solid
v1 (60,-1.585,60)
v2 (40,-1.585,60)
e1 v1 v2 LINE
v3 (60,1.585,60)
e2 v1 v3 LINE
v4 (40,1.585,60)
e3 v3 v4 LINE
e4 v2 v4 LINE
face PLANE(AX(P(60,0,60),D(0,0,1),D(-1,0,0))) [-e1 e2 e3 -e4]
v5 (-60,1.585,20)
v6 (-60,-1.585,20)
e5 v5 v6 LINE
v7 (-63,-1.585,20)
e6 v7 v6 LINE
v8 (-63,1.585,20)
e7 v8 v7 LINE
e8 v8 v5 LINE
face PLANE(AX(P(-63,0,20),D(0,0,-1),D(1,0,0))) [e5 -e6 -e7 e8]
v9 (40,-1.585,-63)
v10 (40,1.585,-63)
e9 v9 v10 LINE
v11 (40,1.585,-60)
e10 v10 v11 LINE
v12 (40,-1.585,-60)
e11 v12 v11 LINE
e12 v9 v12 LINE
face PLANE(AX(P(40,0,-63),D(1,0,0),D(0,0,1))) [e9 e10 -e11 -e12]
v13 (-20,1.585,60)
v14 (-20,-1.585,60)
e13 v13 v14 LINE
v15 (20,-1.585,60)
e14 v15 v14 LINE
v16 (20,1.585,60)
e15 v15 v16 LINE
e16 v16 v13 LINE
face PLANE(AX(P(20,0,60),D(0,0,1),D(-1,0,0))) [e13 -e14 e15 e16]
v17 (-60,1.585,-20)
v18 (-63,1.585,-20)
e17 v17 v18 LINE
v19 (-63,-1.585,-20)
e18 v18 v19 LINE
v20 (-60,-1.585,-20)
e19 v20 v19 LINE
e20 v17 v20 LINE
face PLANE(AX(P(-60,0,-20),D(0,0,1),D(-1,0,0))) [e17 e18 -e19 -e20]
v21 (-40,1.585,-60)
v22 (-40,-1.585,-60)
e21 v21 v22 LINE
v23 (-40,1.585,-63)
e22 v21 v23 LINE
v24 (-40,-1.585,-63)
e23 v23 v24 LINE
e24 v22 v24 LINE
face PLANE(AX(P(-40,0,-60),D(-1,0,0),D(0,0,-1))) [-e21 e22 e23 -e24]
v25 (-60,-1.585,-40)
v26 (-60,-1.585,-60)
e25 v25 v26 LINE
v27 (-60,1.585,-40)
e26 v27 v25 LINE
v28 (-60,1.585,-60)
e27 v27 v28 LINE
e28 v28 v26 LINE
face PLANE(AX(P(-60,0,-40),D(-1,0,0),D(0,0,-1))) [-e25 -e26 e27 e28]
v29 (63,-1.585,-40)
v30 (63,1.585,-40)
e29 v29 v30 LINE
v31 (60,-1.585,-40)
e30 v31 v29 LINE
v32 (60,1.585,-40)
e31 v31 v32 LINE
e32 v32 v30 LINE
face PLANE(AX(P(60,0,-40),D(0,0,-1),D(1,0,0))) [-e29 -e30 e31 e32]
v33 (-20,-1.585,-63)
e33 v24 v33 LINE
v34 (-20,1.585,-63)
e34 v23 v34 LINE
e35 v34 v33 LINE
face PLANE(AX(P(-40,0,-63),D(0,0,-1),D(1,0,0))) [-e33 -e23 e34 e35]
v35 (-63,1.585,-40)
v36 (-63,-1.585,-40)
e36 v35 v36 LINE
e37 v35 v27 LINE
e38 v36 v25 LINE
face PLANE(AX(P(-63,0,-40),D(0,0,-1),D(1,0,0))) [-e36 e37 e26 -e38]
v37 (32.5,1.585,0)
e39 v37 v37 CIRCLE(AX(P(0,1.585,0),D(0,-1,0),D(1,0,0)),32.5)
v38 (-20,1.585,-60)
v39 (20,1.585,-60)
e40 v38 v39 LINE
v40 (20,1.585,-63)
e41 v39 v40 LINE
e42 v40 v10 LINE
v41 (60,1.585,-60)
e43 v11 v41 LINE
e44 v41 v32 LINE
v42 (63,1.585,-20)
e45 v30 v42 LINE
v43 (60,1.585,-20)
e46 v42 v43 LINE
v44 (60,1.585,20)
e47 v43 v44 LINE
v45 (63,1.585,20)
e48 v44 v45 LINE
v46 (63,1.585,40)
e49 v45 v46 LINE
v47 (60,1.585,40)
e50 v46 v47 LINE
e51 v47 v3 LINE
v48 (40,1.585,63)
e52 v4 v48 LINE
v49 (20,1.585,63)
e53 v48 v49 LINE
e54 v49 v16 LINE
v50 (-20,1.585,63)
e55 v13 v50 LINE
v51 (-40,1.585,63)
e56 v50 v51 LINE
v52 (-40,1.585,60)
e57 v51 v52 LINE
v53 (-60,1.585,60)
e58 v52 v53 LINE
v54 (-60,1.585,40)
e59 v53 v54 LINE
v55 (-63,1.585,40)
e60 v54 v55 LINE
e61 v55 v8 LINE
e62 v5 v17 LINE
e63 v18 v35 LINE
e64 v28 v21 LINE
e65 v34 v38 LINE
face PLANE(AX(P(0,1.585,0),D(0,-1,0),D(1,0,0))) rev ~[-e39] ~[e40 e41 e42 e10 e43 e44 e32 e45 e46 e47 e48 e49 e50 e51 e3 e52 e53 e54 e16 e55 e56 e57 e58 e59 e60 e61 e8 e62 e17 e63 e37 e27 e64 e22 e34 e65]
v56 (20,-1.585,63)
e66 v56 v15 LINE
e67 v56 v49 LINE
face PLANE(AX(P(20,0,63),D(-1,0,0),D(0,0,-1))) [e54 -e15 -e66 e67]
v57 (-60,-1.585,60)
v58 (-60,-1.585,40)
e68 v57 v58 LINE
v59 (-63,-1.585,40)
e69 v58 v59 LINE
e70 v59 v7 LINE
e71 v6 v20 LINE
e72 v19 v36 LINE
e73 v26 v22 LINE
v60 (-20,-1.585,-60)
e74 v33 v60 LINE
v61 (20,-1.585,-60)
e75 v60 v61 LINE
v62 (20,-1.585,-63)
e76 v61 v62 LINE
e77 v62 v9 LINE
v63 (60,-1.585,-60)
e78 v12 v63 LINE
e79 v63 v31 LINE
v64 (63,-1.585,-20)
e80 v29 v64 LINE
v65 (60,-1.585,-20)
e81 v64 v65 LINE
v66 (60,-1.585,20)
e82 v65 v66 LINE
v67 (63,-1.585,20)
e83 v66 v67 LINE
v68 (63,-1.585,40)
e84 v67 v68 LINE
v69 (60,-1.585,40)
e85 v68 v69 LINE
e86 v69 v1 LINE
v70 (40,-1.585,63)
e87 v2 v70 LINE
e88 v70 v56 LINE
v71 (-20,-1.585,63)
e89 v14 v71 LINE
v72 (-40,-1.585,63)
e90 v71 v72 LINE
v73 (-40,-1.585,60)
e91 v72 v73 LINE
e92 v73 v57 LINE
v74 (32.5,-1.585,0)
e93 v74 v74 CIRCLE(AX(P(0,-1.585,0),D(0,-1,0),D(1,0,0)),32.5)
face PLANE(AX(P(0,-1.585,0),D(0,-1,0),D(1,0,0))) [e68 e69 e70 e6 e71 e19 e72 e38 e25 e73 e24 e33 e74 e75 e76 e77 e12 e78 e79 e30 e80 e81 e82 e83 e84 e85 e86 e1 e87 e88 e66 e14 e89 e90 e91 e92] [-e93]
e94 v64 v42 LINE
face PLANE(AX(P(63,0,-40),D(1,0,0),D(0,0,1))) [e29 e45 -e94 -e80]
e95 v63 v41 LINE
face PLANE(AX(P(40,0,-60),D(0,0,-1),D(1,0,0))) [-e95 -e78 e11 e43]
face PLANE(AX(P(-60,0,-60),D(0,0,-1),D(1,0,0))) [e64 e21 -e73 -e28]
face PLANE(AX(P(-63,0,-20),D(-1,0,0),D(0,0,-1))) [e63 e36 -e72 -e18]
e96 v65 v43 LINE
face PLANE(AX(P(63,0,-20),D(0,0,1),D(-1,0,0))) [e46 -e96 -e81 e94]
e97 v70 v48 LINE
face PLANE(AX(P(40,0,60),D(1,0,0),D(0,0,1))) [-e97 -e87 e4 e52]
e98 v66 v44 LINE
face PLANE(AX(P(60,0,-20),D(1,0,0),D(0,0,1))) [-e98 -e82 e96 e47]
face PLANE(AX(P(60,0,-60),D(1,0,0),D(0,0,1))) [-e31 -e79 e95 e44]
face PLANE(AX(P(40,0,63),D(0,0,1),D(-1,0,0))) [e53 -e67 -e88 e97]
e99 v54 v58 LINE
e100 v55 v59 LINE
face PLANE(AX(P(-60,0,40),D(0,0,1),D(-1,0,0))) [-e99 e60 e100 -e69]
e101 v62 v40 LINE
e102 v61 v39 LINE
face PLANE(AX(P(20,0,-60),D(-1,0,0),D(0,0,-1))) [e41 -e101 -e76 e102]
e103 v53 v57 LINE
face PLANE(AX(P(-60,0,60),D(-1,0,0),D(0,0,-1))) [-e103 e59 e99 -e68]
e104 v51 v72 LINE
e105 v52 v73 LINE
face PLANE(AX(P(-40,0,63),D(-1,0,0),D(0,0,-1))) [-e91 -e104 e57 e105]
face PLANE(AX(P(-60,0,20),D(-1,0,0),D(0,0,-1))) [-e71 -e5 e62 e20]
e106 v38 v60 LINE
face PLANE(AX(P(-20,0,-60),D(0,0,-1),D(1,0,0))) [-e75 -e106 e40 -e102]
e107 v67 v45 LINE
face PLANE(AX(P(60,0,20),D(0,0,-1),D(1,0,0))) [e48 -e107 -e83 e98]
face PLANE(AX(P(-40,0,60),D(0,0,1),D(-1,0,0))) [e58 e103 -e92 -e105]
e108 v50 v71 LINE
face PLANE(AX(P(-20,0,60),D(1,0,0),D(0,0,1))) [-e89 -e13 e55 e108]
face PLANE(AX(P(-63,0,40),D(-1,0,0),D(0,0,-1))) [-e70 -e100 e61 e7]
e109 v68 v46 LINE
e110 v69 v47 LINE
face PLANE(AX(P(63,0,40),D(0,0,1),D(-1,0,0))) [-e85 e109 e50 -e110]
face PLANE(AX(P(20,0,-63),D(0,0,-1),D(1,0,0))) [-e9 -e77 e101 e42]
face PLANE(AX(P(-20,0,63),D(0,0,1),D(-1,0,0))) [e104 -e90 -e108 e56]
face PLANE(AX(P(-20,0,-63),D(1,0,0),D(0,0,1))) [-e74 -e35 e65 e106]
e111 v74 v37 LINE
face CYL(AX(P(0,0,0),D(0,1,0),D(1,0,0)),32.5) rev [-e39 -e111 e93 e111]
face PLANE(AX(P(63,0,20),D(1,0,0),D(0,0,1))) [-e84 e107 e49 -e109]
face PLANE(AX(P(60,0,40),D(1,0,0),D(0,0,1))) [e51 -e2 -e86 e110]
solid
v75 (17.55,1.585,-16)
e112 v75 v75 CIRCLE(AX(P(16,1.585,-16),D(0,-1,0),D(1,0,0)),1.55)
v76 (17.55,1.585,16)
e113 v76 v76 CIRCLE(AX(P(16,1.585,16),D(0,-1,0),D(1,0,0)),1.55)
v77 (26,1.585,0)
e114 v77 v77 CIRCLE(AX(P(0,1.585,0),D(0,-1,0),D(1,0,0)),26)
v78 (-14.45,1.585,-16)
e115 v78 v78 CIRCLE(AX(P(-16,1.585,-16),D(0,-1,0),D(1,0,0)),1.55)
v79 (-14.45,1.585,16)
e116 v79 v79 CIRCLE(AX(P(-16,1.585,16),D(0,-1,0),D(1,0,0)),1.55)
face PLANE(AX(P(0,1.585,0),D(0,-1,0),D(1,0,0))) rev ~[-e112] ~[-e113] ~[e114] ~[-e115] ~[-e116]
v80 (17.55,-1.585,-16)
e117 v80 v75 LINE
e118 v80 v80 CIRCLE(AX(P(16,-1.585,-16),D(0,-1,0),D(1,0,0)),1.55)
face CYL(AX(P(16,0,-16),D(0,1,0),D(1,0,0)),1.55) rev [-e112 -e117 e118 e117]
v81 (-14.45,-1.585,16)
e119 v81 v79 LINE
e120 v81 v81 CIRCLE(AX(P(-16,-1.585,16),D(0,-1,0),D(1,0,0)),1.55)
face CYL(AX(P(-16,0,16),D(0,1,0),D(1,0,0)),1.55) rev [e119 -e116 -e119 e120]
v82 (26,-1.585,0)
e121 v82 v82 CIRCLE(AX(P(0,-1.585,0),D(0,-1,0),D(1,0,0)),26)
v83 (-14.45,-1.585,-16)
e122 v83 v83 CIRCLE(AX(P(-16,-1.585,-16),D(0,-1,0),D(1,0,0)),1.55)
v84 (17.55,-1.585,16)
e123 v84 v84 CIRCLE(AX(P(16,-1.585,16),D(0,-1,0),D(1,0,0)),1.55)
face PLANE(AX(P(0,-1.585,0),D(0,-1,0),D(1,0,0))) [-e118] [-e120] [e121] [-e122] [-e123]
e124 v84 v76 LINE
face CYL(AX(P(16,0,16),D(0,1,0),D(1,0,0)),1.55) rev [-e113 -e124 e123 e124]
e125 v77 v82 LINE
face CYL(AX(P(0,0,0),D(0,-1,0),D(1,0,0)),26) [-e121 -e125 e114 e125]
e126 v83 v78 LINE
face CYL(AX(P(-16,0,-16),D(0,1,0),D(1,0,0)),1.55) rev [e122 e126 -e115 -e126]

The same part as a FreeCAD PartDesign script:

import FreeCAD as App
import Part
import Sketcher

V = App.Vector


def add_polygon(sketch, points):
    """Adds a closed chain of lines whose ends are joined by coincident constraints."""
    first, n = sketch.GeometryCount, len(points)
    for a, b in zip(points, points[1:] + points[:1]):
        sketch.addGeometry(Part.LineSegment(App.Vector(*a, 0), App.Vector(*b, 0)), False)
    for i in range(n):
        sketch.addConstraint(Sketcher.Constraint("Coincident", first + i, 2, first + (i + 1) % n, 1))

doc = App.newDocument("Part")
body = doc.addObject("PartDesign::Body", "Body")

# Sketch on XZ plane
sketch1 = doc.addObject("Sketcher::SketchObject", "Sketch")
body.addObject(sketch1)
sketch1.AttachmentSupport = (doc.XZ_Plane, [""])
sketch1.MapMode = "FlatFace"
add_polygon(sketch1, [(20, 60), (-20, 60), (-20, 63), (-40, 63), (-40, 60), (-60, 60), (-60, 40), (-63, 40), (-63, 20), (-60, 20), (-60, -20), (-63, -20), (-63, -40), (-60, -40), (-60, -60), (-40, -60), (-40, -63), (-20, -63), (-20, -60), (20, -60), (20, -63), (40, -63), (40, -60), (60, -60), (60, -40), (63, -40), (63, -20), (60, -20), (60, 20), (63, 20), (63, 40), (60, 40), (60, 60), (40, 60), (40, 63), (20, 63)])  # lines 0-35
sketch1.addGeometry(Part.Circle(V(0, 0, 0), V(0, 0, 1), 32.5), False)  # 36
sketch1.addConstraint(Sketcher.Constraint("Horizontal", 0))
sketch1.addConstraint(Sketcher.Constraint("Vertical", 1))
sketch1.addConstraint(Sketcher.Constraint("Horizontal", 2))
sketch1.addConstraint(Sketcher.Constraint("Vertical", 3))
sketch1.addConstraint(Sketcher.Constraint("Horizontal", 4))
sketch1.addConstraint(Sketcher.Constraint("Vertical", 5))
sketch1.addConstraint(Sketcher.Constraint("Horizontal", 6))
sketch1.addConstraint(Sketcher.Constraint("Vertical", 7))
sketch1.addConstraint(Sketcher.Constraint("Horizontal", 8))
sketch1.addConstraint(Sketcher.Constraint("Vertical", 9))
sketch1.addConstraint(Sketcher.Constraint("Horizontal", 10))
sketch1.addConstraint(Sketcher.Constraint("Vertical", 11))
sketch1.addConstraint(Sketcher.Constraint("Horizontal", 12))
sketch1.addConstraint(Sketcher.Constraint("Vertical", 13))
sketch1.addConstraint(Sketcher.Constraint("Horizontal", 14))
sketch1.addConstraint(Sketcher.Constraint("Vertical", 15))
sketch1.addConstraint(Sketcher.Constraint("Horizontal", 16))
sketch1.addConstraint(Sketcher.Constraint("Vertical", 17))
sketch1.addConstraint(Sketcher.Constraint("Horizontal", 18))
sketch1.addConstraint(Sketcher.Constraint("Vertical", 19))
sketch1.addConstraint(Sketcher.Constraint("Horizontal", 20))
sketch1.addConstraint(Sketcher.Constraint("Vertical", 21))
sketch1.addConstraint(Sketcher.Constraint("Horizontal", 22))
sketch1.addConstraint(Sketcher.Constraint("Vertical", 23))
sketch1.addConstraint(Sketcher.Constraint("Horizontal", 24))
sketch1.addConstraint(Sketcher.Constraint("Vertical", 25))
sketch1.addConstraint(Sketcher.Constraint("Horizontal", 26))
sketch1.addConstraint(Sketcher.Constraint("Vertical", 27))
sketch1.addConstraint(Sketcher.Constraint("Horizontal", 28))
sketch1.addConstraint(Sketcher.Constraint("Vertical", 29))
sketch1.addConstraint(Sketcher.Constraint("Horizontal", 30))
sketch1.addConstraint(Sketcher.Constraint("Vertical", 31))
sketch1.addConstraint(Sketcher.Constraint("Horizontal", 32))
sketch1.addConstraint(Sketcher.Constraint("Vertical", 33))
sketch1.addConstraint(Sketcher.Constraint("Horizontal", 34))
sketch1.addConstraint(Sketcher.Constraint("Vertical", 35))
sketch1.addConstraint(Sketcher.Constraint("Coincident", 36, 3, -1, 1))
sketch1.addConstraint(Sketcher.Constraint("Symmetric", 0, 2, 18, 2, -1, 1))
sketch1.addConstraint(Sketcher.Constraint("Symmetric", 2, 2, 20, 2, -1, 1))
sketch1.addConstraint(Sketcher.Constraint("Symmetric", 4, 2, 22, 2, -1, 1))
sketch1.addConstraint(Sketcher.Constraint("Symmetric", 6, 2, 24, 2, -1, 1))
sketch1.addConstraint(Sketcher.Constraint("Symmetric", 8, 2, 26, 2, -1, 1))
sketch1.addConstraint(Sketcher.Constraint("Symmetric", 10, 2, 28, 2, -1, 1))
sketch1.addConstraint(Sketcher.Constraint("Symmetric", 12, 2, 30, 2, -1, 1))
sketch1.addConstraint(Sketcher.Constraint("Symmetric", 14, 2, 32, 2, -1, 1))
sketch1.addConstraint(Sketcher.Constraint("Symmetric", 16, 2, 34, 2, -1, 1))
sketch1.addConstraint(Sketcher.Constraint("Symmetric", 16, 2, 19, 2, -2))
sketch1.addConstraint(Sketcher.Constraint("Symmetric", 14, 2, 21, 2, -2))
sketch1.addConstraint(Sketcher.Constraint("Symmetric", 12, 2, 23, 2, -2))
sketch1.addConstraint(Sketcher.Constraint("Symmetric", 10, 2, 25, 2, -2))
sketch1.addConstraint(Sketcher.Constraint("Horizontal", 0, 2, 3, 2))
sketch1.addConstraint(Sketcher.Constraint("Vertical", 5, 2, 8, 2))
sketch1.addConstraint(Sketcher.Constraint("Equal", 2, 4))
sketch1.addConstraint(Sketcher.Constraint("Equal", 30, 1))
sketch1.addConstraint(Sketcher.Constraint("Equal", 34, 5))
sketch1.addConstraint(Sketcher.Constraint("Equal", 5, 7))
sketch1.addConstraint(Sketcher.Constraint("Equal", 18, 9))
sketch1.addConstraint(Sketcher.Constraint("Diameter", 36, 65.0))
sketch1.addConstraint(Sketcher.Constraint("DistanceX", 0, 2, 0, 1, 40.0))
sketch1.addConstraint(Sketcher.Constraint("DistanceX", 2, 2, 2, 1, 20.0))
sketch1.addConstraint(Sketcher.Constraint("DistanceX", 6, 2, 6, 1, 3.0))
pad1 = doc.addObject("PartDesign::Pad", "Pad")
body.addObject(pad1)
pad1.Profile = sketch1
pad1.Length = 3.17
pad1.Midplane = True
body2 = doc.addObject("PartDesign::Body", "Body001")

# Sketch on XZ plane
sketch2 = doc.addObject("Sketcher::SketchObject", "Sketch001")
body2.addObject(sketch2)
sketch2.AttachmentSupport = (doc.getObject("XZ_Plane001"), [""])
sketch2.MapMode = "FlatFace"
sketch2.addGeometry(Part.Circle(V(0, 0, 0), V(0, 0, 1), 26), False)
sketch2.addGeometry(Part.Circle(V(-16, -16, 0), V(0, 0, 1), 1.6), False)
sketch2.addGeometry(Part.Circle(V(16, -16, 0), V(0, 0, 1), 1.6), False)
sketch2.addGeometry(Part.Circle(V(-16, 16, 0), V(0, 0, 1), 1.6), False)
sketch2.addGeometry(Part.Circle(V(16, 16, 0), V(0, 0, 1), 1.6), False)
sketch2.addConstraint(Sketcher.Constraint("Coincident", 0, 3, -1, 1))
sketch2.addConstraint(Sketcher.Constraint("Equal", 1, 2))
sketch2.addConstraint(Sketcher.Constraint("Equal", 2, 3))
sketch2.addConstraint(Sketcher.Constraint("Equal", 3, 4))
sketch2.addConstraint(Sketcher.Constraint("Symmetric", 2, 3, 3, 3, -1, 1))
sketch2.addConstraint(Sketcher.Constraint("Symmetric", 1, 3, 4, 3, -1, 1))
sketch2.addConstraint(Sketcher.Constraint("Symmetric", 1, 3, 2, 3, -2))
sketch2.addConstraint(Sketcher.Constraint("Diameter", 0, 52.0))
sketch2.addConstraint(Sketcher.Constraint("Diameter", 1, 3.1))
sketch2.addConstraint(Sketcher.Constraint("DistanceX", 1, 3, -1, 1, 16.0))
sketch2.addConstraint(Sketcher.Constraint("DistanceY", 1, 3, -1, 1, 16.0))
pad2 = doc.addObject("PartDesign::Pad", "Pad001")
body2.addObject(pad2)
pad2.Profile = sketch2
pad2.Length = 3.17
pad2.Midplane = True

doc.recompute()
